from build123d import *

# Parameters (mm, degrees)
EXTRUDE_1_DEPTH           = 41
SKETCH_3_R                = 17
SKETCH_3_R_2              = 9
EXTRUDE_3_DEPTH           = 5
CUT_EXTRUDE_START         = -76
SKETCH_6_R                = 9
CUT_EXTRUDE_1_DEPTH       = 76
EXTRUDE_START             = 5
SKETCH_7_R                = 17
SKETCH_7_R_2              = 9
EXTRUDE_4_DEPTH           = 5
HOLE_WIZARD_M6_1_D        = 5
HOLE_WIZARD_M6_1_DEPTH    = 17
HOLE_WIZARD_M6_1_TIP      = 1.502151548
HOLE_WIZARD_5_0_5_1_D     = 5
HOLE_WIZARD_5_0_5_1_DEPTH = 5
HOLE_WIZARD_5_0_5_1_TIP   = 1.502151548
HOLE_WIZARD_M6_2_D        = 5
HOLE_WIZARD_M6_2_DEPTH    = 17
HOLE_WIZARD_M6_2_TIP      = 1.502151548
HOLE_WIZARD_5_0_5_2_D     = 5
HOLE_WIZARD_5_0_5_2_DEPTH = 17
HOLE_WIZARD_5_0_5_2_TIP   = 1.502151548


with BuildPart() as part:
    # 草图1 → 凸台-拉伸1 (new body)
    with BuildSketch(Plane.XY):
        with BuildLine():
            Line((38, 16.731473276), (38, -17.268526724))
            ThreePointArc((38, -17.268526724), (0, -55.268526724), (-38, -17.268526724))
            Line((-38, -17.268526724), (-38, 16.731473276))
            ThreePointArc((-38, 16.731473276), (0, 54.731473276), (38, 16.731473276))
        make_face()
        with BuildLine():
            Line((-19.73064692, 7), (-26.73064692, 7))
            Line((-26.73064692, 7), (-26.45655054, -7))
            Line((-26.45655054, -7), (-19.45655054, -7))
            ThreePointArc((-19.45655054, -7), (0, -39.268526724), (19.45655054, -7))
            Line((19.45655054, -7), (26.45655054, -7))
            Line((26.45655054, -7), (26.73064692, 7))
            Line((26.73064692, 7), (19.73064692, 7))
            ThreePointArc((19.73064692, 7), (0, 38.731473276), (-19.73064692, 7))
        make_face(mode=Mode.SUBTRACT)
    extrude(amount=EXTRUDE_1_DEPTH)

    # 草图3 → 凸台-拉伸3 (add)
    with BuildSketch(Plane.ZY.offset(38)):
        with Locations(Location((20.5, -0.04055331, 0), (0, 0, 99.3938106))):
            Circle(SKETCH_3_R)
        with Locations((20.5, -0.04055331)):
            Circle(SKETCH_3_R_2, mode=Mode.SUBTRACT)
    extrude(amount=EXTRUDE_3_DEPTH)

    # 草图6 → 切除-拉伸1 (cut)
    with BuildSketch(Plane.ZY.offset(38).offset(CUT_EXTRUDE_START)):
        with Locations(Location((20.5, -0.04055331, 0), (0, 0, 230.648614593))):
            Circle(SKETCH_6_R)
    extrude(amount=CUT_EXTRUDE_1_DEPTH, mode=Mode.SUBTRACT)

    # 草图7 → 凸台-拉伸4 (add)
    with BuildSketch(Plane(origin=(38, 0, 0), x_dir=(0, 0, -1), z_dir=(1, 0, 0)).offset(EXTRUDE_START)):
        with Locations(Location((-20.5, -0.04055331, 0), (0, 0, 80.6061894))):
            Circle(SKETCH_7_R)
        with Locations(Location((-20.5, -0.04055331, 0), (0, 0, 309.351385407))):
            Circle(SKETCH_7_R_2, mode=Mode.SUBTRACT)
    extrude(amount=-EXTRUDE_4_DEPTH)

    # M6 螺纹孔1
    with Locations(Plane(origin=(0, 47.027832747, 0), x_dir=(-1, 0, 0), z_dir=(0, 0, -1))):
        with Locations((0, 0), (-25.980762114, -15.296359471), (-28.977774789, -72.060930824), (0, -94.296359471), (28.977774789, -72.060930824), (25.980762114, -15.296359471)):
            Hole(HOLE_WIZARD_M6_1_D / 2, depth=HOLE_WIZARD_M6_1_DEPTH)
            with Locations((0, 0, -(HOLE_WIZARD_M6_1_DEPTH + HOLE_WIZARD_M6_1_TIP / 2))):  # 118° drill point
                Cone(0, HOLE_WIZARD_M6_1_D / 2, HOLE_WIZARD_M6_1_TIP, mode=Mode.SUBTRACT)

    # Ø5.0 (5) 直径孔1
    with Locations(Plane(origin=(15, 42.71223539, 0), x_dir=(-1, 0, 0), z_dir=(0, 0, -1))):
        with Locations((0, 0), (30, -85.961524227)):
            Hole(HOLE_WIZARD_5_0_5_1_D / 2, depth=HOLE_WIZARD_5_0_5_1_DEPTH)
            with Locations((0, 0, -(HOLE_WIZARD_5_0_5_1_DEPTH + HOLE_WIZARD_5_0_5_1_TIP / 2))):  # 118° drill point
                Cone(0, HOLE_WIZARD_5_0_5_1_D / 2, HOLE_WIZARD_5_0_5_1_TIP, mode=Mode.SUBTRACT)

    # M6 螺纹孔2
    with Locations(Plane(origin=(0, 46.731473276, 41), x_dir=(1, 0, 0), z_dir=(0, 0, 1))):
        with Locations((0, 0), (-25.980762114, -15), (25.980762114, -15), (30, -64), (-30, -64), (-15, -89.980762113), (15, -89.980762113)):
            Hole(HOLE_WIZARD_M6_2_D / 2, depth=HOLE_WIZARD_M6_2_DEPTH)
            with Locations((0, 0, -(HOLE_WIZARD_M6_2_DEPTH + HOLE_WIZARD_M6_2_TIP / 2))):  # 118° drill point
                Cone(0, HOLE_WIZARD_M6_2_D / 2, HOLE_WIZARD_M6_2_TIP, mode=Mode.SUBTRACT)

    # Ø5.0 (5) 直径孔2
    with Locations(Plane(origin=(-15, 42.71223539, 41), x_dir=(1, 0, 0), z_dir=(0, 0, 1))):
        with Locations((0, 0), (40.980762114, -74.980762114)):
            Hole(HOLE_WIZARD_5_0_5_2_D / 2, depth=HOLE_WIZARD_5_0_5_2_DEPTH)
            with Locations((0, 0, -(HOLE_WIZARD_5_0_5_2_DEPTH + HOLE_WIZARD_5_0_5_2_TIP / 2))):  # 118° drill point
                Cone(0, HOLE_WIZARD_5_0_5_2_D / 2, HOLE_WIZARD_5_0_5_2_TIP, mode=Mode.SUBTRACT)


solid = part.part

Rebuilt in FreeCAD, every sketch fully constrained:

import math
import FreeCAD as App
import Part
import Sketcher

V = App.Vector
Q = App.Units.Quantity

doc = App.newDocument("Part")
body = doc.addObject("PartDesign::Body", "Body")

# Sketch on XY plane
sketch1 = body.newObject("Sketcher::SketchObject", "Sketch")
sketch1.AttachmentSupport = (doc.getObject("XY_Plane"), [""])
sketch1.MapMode = "FlatFace"
sketch1.addGeometry([
    Part.LineSegment(V(38, -17, 0), V(38, 17, 0)),  # 0
    Part.ArcOfCircle(Part.Circle(V(0, 17, 0), V(0, 0, 1), 38), math.radians(0), math.radians(180)),  # 1
    Part.LineSegment(V(-38, 17, 0), V(-38, -17, 0)),  # 2
    Part.ArcOfCircle(Part.Circle(V(0, -17, 0), V(0, 0, 1), 38), math.radians(180), math.radians(360)),  # 3
    Part.ArcOfCircle(Part.Circle(V(0, 17, 0), V(0, 0, 1), 22), math.radians(-26), math.radians(206)),  # 4
    Part.LineSegment(V(20, 7, 0), V(27, 7, 0)),  # 5
    Part.LineSegment(V(27, 7, 0), V(26, -7, 0)),  # 6
    Part.LineSegment(V(26, -7, 0), V(19, -7, 0)),  # 7
    Part.ArcOfCircle(Part.Circle(V(0, -17, 0), V(0, 0, 1), 22), math.radians(152), math.radians(388)),  # 8
    Part.LineSegment(V(-19, -7, 0), V(-26, -7, 0)),  # 9
    Part.LineSegment(V(-26, -7, 0), V(-27, 7, 0)),  # 10
    Part.LineSegment(V(-27, 7, 0), V(-20, 7, 0)),  # 11
], False)
sketch1.addConstraint([
    Sketcher.Constraint("Tangent", 0, 2, 1, 1),
    Sketcher.Constraint("Tangent", 1, 2, 2, 1),
    Sketcher.Constraint("Tangent", 2, 2, 3, 1),
    Sketcher.Constraint("Tangent", 3, 2, 0, 1),
    Sketcher.Constraint("Coincident", 4, 1, 5, 1),
    Sketcher.Constraint("Coincident", 5, 2, 6, 1),
    Sketcher.Constraint("Coincident", 6, 2, 7, 1),
    Sketcher.Constraint("Coincident", 7, 2, 8, 2),
    Sketcher.Constraint("Coincident", 8, 1, 9, 1),
    Sketcher.Constraint("Coincident", 9, 2, 10, 1),
    Sketcher.Constraint("Coincident", 10, 2, 11, 1),
    Sketcher.Constraint("Coincident", 11, 2, 4, 2),
    Sketcher.Constraint("Vertical", 0),
    Sketcher.Constraint("Vertical", 2),
    Sketcher.Constraint("Horizontal", 5),
    Sketcher.Constraint("Horizontal", 7),
    Sketcher.Constraint("Horizontal", 9),
    Sketcher.Constraint("Horizontal", 11),
    Sketcher.Constraint("Coincident", 4, 3, 1, 3),
    Sketcher.Constraint("Coincident", 8, 3, 3, 3),
    Sketcher.Constraint("Equal", 4, 8),
    Sketcher.Constraint("Symmetric", 7, 2, 8, 1, -2),
    Sketcher.Constraint("Symmetric", 5, 2, 10, 2, -2),
    Sketcher.Constraint("Equal", 5, 7),
    Sketcher.Constraint("Equal", 7, 9),
    Sketcher.Constraint("Radius", 1, Q("38 mm")),
    Sketcher.Constraint("Radius", 4, Q("22 mm")),
    Sketcher.Constraint("DistanceX", 5, 1, 5, 2, Q("7 mm")),
    Sketcher.Constraint("DistanceY", 0, 1, 0, 2, Q("34 mm")),
    Sketcher.Constraint("DistanceY", -1, 1, 4, 1, Q("7 mm")),
    Sketcher.Constraint("DistanceY", 6, 2, -1, 1, Q("7 mm")),
    Sketcher.Constraint("DistanceX", -1, 1, 6, 2, Q("26.456551 mm")),
])
pad1 = body.newObject("PartDesign::Pad", "Pad")
pad1.Profile = sketch1
pad1.Length = 41

# Sketch on YZ plane
sketch2 = body.newObject("Sketcher::SketchObject", "Sketch001")
sketch2.AttachmentSupport = (doc.getObject("YZ_Plane"), [""])
sketch2.MapMode = "FlatFace"
sketch2.AttachmentOffset = App.Placement(V(0, 0, -38), App.Rotation())
sketch2.addGeometry([
    Part.Circle(V(0, 20, 0), V(0, 0, 1), 17),
    Part.Circle(V(0, 20, 0), V(0, 0, 1), 9),
], False)
sketch2.addConstraint([
    Sketcher.Constraint("Coincident", 1, 3, 0, 3),
    Sketcher.Constraint("Diameter", 0, Q("34 mm")),
    Sketcher.Constraint("Diameter", 1, Q("18 mm")),
    Sketcher.Constraint("DistanceY", -1, 1, 0, 3, Q("20.5 mm")),
    Sketcher.Constraint("DistanceX", 0, 3, -1, 1, Q("0.040553 mm")),
])
pad2 = body.newObject("PartDesign::Pad", "Pad001")
pad2.Profile = sketch2
pad2.Length = 5
pad2.Reversed = True

# Sketch on YZ plane
sketch3 = body.newObject("Sketcher::SketchObject", "Sketch002")
sketch3.AttachmentSupport = (doc.getObject("YZ_Plane"), [""])
sketch3.MapMode = "FlatFace"
sketch3.AttachmentOffset = App.Placement(V(0, 0, 38), App.Rotation())
sketch3.addGeometry(Part.Circle(V(0, 20, 0), V(0, 0, 1), 9), False)
sketch3.addConstraint([
    Sketcher.Constraint("Diameter", 0, Q("18 mm")),
    Sketcher.Constraint("DistanceY", -1, 1, 0, 3, Q("20.5 mm")),
    Sketcher.Constraint("DistanceX", 0, 3, -1, 1, Q("0.040553 mm")),
])
pocket1 = body.newObject("PartDesign::Pocket", "Pocket")
pocket1.Profile = sketch3
pocket1.Length = 76

# Sketch on YZ plane
sketch4 = body.newObject("Sketcher::SketchObject", "Sketch003")
sketch4.AttachmentSupport = (doc.getObject("YZ_Plane"), [""])
sketch4.MapMode = "FlatFace"
sketch4.AttachmentOffset = App.Placement(V(0, 0, 43), App.Rotation())
sketch4.addGeometry([
    Part.Circle(V(0, 20, 0), V(0, 0, 1), 17),
    Part.Circle(V(0, 20, 0), V(0, 0, 1), 9),
], False)
sketch4.addConstraint([
    Sketcher.Constraint("Coincident", 1, 3, 0, 3),
    Sketcher.Constraint("Diameter", 0, Q("34 mm")),
    Sketcher.Constraint("Diameter", 1, Q("18 mm")),
    Sketcher.Constraint("DistanceY", -1, 1, 0, 3, Q("20.5 mm")),
    Sketcher.Constraint("DistanceX", 0, 3, -1, 1, Q("0.040553 mm")),
])
pad3 = body.newObject("PartDesign::Pad", "Pad002")
pad3.Profile = sketch4
pad3.Length = 5
pad3.Reversed = True

# Sketch on XY plane
sketch5 = body.newObject("Sketcher::SketchObject", "Sketch004")
sketch5.AttachmentSupport = (doc.getObject("XY_Plane"), [""])
sketch5.MapMode = "FlatFace"
sketch5.addGeometry([
    Part.Circle(V(0, 47, 0), V(0, 0, 1), 2.5),  # 0
    Part.Circle(V(26, 31.7, 0), V(0, 0, 1), 2.5),  # 1
    Part.Circle(V(29, -25, 0), V(0, 0, 1), 2.5),  # 2
    Part.Circle(V(0, -47.3, 0), V(0, 0, 1), 2.5),  # 3
    Part.Circle(V(-29, -25, 0), V(0, 0, 1), 2.5),  # 4
    Part.Circle(V(-26, 31.7, 0), V(0, 0, 1), 2.5),  # 5
], False)
sketch5.addConstraint([
    Sketcher.Constraint("Equal", 0, 1),
    Sketcher.Constraint("Equal", 1, 2),
    Sketcher.Constraint("Equal", 2, 3),
    Sketcher.Constraint("Equal", 3, 4),
    Sketcher.Constraint("Equal", 4, 5),
    Sketcher.Constraint("Symmetric", 2, 3, 4, 3, -2),
    Sketcher.Constraint("Symmetric", 1, 3, 5, 3, -2),
    Sketcher.Constraint("PointOnObject", 0, 3, -2),
    Sketcher.Constraint("PointOnObject", 3, 3, -2),
    Sketcher.Constraint("Diameter", 0, Q("5 mm")),
    Sketcher.Constraint("DistanceY", 3, 3, 1, 3, Q("79 mm")),
    Sketcher.Constraint("DistanceY", 2, 3, -1, 1, Q("25.033098 mm")),
    Sketcher.Constraint("DistanceY", 1, 3, 0, 3, Q("15.296359 mm")),
    Sketcher.Constraint("DistanceY", 2, 3, 1, 3, Q("56.764571 mm")),
    Sketcher.Constraint("DistanceX", 4, 3, 2, 3, Q("57.95555 mm")),
    Sketcher.Constraint("DistanceX", -1, 1, 1, 3, Q("25.980762 mm")),
])
doc.recompute()
hole = body.newObject("PartDesign::Hole", "Hole")
hole.Profile = sketch5
hole.ThreadType = "None"
hole.Diameter = 5
hole.DepthType = "Dimension"
hole.Depth = 17
hole.DrillPoint = "Angled"
hole.DrillPointAngle = 118
hole.Reversed = True

# Sketch on XY plane
sketch6 = body.newObject("Sketcher::SketchObject", "Sketch005")
sketch6.AttachmentSupport = (doc.getObject("XY_Plane"), [""])
sketch6.MapMode = "FlatFace"
sketch6.addGeometry([
    Part.Circle(V(15, 42.7, 0), V(0, 0, 1), 2.5),
    Part.Circle(V(-15, -43.2, 0), V(0, 0, 1), 2.5),
], False)
sketch6.addConstraint([
    Sketcher.Constraint("Equal", 0, 1),
    Sketcher.Constraint("Diameter", 0, Q("5 mm")),
    Sketcher.Constraint("DistanceX", -1, 1, 0, 3, Q("15 mm")),
    Sketcher.Constraint("DistanceX", 1, 3, -1, 1, Q("15 mm")),
    Sketcher.Constraint("DistanceY", 1, 3, -1, 1, Q("43.249289 mm")),
    Sketcher.Constraint("DistanceY", -1, 1, 0, 3, Q("42.712235 mm")),
])
doc.recompute()
hole2 = body.newObject("PartDesign::Hole", "Hole001")
hole2.Profile = sketch6
hole2.ThreadType = "None"
hole2.Diameter = 5
hole2.DepthType = "Dimension"
hole2.Depth = 5
hole2.DrillPoint = "Angled"
hole2.DrillPointAngle = 118
hole2.Reversed = True

# Sketch on XY plane
sketch7 = body.newObject("Sketcher::SketchObject", "Sketch006")
sketch7.AttachmentSupport = (doc.getObject("XY_Plane"), [""])
sketch7.MapMode = "FlatFace"
sketch7.AttachmentOffset = App.Placement(V(0, 0, 41), App.Rotation())
sketch7.addGeometry([
    Part.Circle(V(0, 46.7, 0), V(0, 0, 1), 2.5),  # 0
    Part.Circle(V(-26, 31.7, 0), V(0, 0, 1), 2.5),  # 1
    Part.Circle(V(26, 31.7, 0), V(0, 0, 1), 2.5),  # 2
    Part.Circle(V(30, -17.3, 0), V(0, 0, 1), 2.5),  # 3
    Part.Circle(V(-30, -17.3, 0), V(0, 0, 1), 2.5),  # 4
    Part.Circle(V(-15, -43.2, 0), V(0, 0, 1), 2.5),  # 5
    Part.Circle(V(15, -43.2, 0), V(0, 0, 1), 2.5),  # 6
], False)
sketch7.addConstraint([
    Sketcher.Constraint("Equal", 0, 1),
    Sketcher.Constraint("Equal", 1, 2),
    Sketcher.Constraint("Equal", 2, 3),
    Sketcher.Constraint("Equal", 3, 4),
    Sketcher.Constraint("Equal", 4, 5),
    Sketcher.Constraint("Equal", 5, 6),
    Sketcher.Constraint("Symmetric", 1, 3, 2, 3, -2),
    Sketcher.Constraint("Symmetric", 3, 3, 4, 3, -2),
    Sketcher.Constraint("Symmetric", 5, 3, 6, 3, -2),
    Sketcher.Constraint("PointOnObject", 0, 3, -2),
    Sketcher.Constraint("Diameter", 0, Q("5 mm")),
    Sketcher.Constraint("DistanceX", -1, 1, 3, 3, Q("30 mm")),
    Sketcher.Constraint("DistanceX", 5, 3, -1, 1, Q("15 mm")),
    Sketcher.Constraint("DistanceY", 1, 3, 0, 3, Q("15 mm")),
    Sketcher.Constraint("DistanceY", 3, 3, 2, 3, Q("49 mm")),
    Sketcher.Constraint("DistanceY", 5, 3, -1, 1, Q("43.249289 mm")),
    Sketcher.Constraint("DistanceY", -1, 1, 0, 3, Q("46.731473 mm")),
    Sketcher.Constraint("DistanceX", 1, 3, -1, 1, Q("25.980762 mm")),
])
doc.recompute()
hole3 = body.newObject("PartDesign::Hole", "Hole002")
hole3.Profile = sketch7
hole3.ThreadType = "None"
hole3.Diameter = 5
hole3.DepthType = "Dimension"
hole3.Depth = 17
hole3.DrillPoint = "Angled"
hole3.DrillPointAngle = 118

# Sketch on XY plane
sketch8 = body.newObject("Sketcher::SketchObject", "Sketch007")
sketch8.AttachmentSupport = (doc.getObject("XY_Plane"), [""])
sketch8.MapMode = "FlatFace"
sketch8.AttachmentOffset = App.Placement(V(0, 0, 41), App.Rotation())
sketch8.addGeometry([
    Part.Circle(V(-15, 42.7, 0), V(0, 0, 1), 2.5),
    Part.Circle(V(26, -32.3, 0), V(0, 0, 1), 2.5),
], False)
sketch8.addConstraint([
    Sketcher.Constraint("Equal", 0, 1),
    Sketcher.Constraint("Diameter", 0, Q("5 mm")),
    Sketcher.Constraint("DistanceX", 0, 3, -1, 1, Q("15 mm")),
    Sketcher.Constraint("DistanceY", -1, 1, 0, 3, Q("42.712235 mm")),
    Sketcher.Constraint("DistanceX", -1, 1, 1, 3, Q("25.980762 mm")),
    Sketcher.Constraint("DistanceY", 1, 3, -1, 1, Q("32.268527 mm")),
])
doc.recompute()
hole4 = body.newObject("PartDesign::Hole", "Hole003")
hole4.Profile = sketch8
hole4.ThreadType = "None"
hole4.Diameter = 5
hole4.DepthType = "Dimension"
hole4.Depth = 17
hole4.DrillPoint = "Angled"
hole4.DrillPointAngle = 118

doc.recompute()
